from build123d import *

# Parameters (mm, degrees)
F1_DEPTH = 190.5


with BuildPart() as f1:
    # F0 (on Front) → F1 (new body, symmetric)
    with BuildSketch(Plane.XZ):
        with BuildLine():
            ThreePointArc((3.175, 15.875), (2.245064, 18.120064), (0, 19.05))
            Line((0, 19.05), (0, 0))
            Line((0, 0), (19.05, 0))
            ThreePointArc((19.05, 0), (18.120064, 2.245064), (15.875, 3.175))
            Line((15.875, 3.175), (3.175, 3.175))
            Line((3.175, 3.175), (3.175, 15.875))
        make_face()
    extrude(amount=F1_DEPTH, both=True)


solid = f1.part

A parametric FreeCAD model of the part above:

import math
import FreeCAD as App
import Part
import Sketcher
from FreeCAD import Vector
Q = App.Units.Quantity

doc = App.newDocument("Part")
body = doc.addObject("PartDesign::Body", "Body")

# Sketch on XZ plane
sketch1 = body.newObject("Sketcher::SketchObject", "Sketch")
sketch1.AttachmentSupport = (doc.getObject("XZ_Plane"), [""])
sketch1.MapMode = "FlatFace"
sketch1.addGeometry(Part.ArcOfCircle(Part.Circle(Vector(0, 15.9, 0), Vector(0, 0, 1), 3.2), math.radians(0), math.radians(90)), False)
sketch1.addGeometry(Part.LineSegment(Vector(0, 19.1, 0), Vector(0, 0, 0)), False)
sketch1.addGeometry(Part.LineSegment(Vector(0, 0, 0), Vector(19.1, 0, 0)), False)
sketch1.addGeometry(Part.ArcOfCircle(Part.Circle(Vector(15.9, 0, 0), Vector(0, 0, 1), 3.2), math.radians(0), math.radians(90)), False)
sketch1.addGeometry(Part.LineSegment(Vector(15.9, 3.2, 0), Vector(3.2, 3.2, 0)), False)
sketch1.addGeometry(Part.LineSegment(Vector(3.2, 3.2, 0), Vector(3.2, 15.9, 0)), False)
sketch1.addConstraint(Sketcher.Constraint("Coincident", 0, 2, 1, 1))
sketch1.addConstraint(Sketcher.Constraint("Coincident", 1, 2, 2, 1))
sketch1.addConstraint(Sketcher.Constraint("Coincident", 2, 2, 3, 1))
sketch1.addConstraint(Sketcher.Constraint("Tangent", 3, 2, 4, 1))
sketch1.addConstraint(Sketcher.Constraint("Coincident", 4, 2, 5, 1))
sketch1.addConstraint(Sketcher.Constraint("Tangent", 5, 2, 0, 1))
sketch1.addConstraint(Sketcher.Constraint("Vertical", 1))
sketch1.addConstraint(Sketcher.Constraint("Horizontal", 2))
sketch1.addConstraint(Sketcher.Constraint("Horizontal", 4))
sketch1.addConstraint(Sketcher.Constraint("Vertical", 5))
sketch1.addConstraint(Sketcher.Constraint("Coincident", 1, 2, -1, 1))
sketch1.addConstraint(Sketcher.Constraint("Equal", 0, 3))
sketch1.addConstraint(Sketcher.Constraint("PointOnObject", 0, 3, -2))
sketch1.addConstraint(Sketcher.Constraint("PointOnObject", 3, 3, -1))
sketch1.addConstraint(Sketcher.Constraint("Equal", 2, 1))
sketch1.addConstraint(Sketcher.Constraint("DistanceX", 4, 2, 4, 1, Q("0.5 in")))
sketch1.addConstraint(Sketcher.Constraint("Radius", 0, Q("0.125 in")))
pad1 = body.newObject("PartDesign::Pad", "Pad")
pad1.Profile = sketch1
pad1.Length = Q("15 in")
pad1.Midplane = True

doc.recompute()
